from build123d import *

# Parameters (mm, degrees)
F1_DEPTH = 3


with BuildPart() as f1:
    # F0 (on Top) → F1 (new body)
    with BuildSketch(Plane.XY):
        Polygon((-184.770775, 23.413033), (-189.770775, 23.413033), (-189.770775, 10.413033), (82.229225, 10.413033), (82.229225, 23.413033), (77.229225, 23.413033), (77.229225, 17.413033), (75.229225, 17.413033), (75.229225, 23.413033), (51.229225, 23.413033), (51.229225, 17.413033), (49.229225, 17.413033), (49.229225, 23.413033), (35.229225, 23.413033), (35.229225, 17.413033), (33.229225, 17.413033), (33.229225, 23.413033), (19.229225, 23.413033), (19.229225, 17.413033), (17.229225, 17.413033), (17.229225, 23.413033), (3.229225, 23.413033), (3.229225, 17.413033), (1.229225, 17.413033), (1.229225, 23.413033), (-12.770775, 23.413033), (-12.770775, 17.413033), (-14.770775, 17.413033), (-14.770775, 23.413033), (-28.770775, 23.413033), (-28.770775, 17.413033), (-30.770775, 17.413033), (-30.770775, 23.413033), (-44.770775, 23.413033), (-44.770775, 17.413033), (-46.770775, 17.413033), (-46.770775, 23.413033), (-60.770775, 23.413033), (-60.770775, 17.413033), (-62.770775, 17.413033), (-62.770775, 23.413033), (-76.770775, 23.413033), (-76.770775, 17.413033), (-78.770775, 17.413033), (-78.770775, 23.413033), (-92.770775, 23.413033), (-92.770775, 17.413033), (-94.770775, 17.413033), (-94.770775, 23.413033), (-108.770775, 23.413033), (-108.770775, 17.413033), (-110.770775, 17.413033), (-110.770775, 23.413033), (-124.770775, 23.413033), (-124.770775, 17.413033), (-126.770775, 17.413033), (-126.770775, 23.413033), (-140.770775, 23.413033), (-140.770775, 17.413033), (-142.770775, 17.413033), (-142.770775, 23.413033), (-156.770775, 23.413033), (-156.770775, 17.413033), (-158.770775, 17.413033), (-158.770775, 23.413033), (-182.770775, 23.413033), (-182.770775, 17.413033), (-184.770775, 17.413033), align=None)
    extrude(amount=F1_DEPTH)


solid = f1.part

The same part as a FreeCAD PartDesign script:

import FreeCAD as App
import Part
import Sketcher

V = App.Vector

doc = App.newDocument("Part")
body = doc.addObject("PartDesign::Body", "Body")

sketch1 = body.newObject("Sketcher::SketchObject", "Sketch")
sketch1.AttachmentSupport = (doc.getObject("XY_Plane"), [""])
sketch1.MapMode = "FlatFace"
sketch1.addGeometry([
    Part.LineSegment(V(-184.8, 23.4, 0), V(-189.8, 23.4, 0)),
    Part.LineSegment(V(-189.8, 23.4, 0), V(-189.8, 10.4, 0)),
    Part.LineSegment(V(-189.8, 10.4, 0), V(82.2, 10.4, 0)),
    Part.LineSegment(V(82.2, 10.4, 0), V(82.2, 23.4, 0)),
    Part.LineSegment(V(82.2, 23.4, 0), V(77.2, 23.4, 0)),
    Part.LineSegment(V(77.2, 23.4, 0), V(77.2, 17.4, 0)),
    Part.LineSegment(V(77.2, 17.4, 0), V(75.2, 17.4, 0)),
    Part.LineSegment(V(75.2, 17.4, 0), V(75.2, 23.4, 0)),
    Part.LineSegment(V(75.2, 23.4, 0), V(51.2, 23.4, 0)),
    Part.LineSegment(V(51.2, 23.4, 0), V(51.2, 17.4, 0)),
    Part.LineSegment(V(51.2, 17.4, 0), V(49.2, 17.4, 0)),
    Part.LineSegment(V(49.2, 17.4, 0), V(49.2, 23.4, 0)),
    Part.LineSegment(V(49.2, 23.4, 0), V(35.2, 23.4, 0)),
    Part.LineSegment(V(35.2, 23.4, 0), V(35.2, 17.4, 0)),
    Part.LineSegment(V(35.2, 17.4, 0), V(33.2, 17.4, 0)),
    Part.LineSegment(V(33.2, 17.4, 0), V(33.2, 23.4, 0)),
    Part.LineSegment(V(33.2, 23.4, 0), V(19.2, 23.4, 0)),
    Part.LineSegment(V(19.2, 23.4, 0), V(19.2, 17.4, 0)),
    Part.LineSegment(V(19.2, 17.4, 0), V(17.2, 17.4, 0)),
    Part.LineSegment(V(17.2, 17.4, 0), V(17.2, 23.4, 0)),
    Part.LineSegment(V(17.2, 23.4, 0), V(3.2, 23.4, 0)),
    Part.LineSegment(V(3.2, 23.4, 0), V(3.2, 17.4, 0)),
    Part.LineSegment(V(3.2, 17.4, 0), V(1.2, 17.4, 0)),
    Part.LineSegment(V(1.2, 17.4, 0), V(1.2, 23.4, 0)),
    Part.LineSegment(V(1.2, 23.4, 0), V(-12.8, 23.4, 0)),
    Part.LineSegment(V(-12.8, 23.4, 0), V(-12.8, 17.4, 0)),
    Part.LineSegment(V(-12.8, 17.4, 0), V(-14.8, 17.4, 0)),
    Part.LineSegment(V(-14.8, 17.4, 0), V(-14.8, 23.4, 0)),
    Part.LineSegment(V(-14.8, 23.4, 0), V(-28.8, 23.4, 0)),
    Part.LineSegment(V(-28.8, 23.4, 0), V(-28.8, 17.4, 0)),
    Part.LineSegment(V(-28.8, 17.4, 0), V(-30.8, 17.4, 0)),
    Part.LineSegment(V(-30.8, 17.4, 0), V(-30.8, 23.4, 0)),
    Part.LineSegment(V(-30.8, 23.4, 0), V(-44.8, 23.4, 0)),
    Part.LineSegment(V(-44.8, 23.4, 0), V(-44.8, 17.4, 0)),
    Part.LineSegment(V(-44.8, 17.4, 0), V(-46.8, 17.4, 0)),
    Part.LineSegment(V(-46.8, 17.4, 0), V(-46.8, 23.4, 0)),
    Part.LineSegment(V(-46.8, 23.4, 0), V(-60.8, 23.4, 0)),
    Part.LineSegment(V(-60.8, 23.4, 0), V(-60.8, 17.4, 0)),
    Part.LineSegment(V(-60.8, 17.4, 0), V(-62.8, 17.4, 0)),
    Part.LineSegment(V(-62.8, 17.4, 0), V(-62.8, 23.4, 0)),
    Part.LineSegment(V(-62.8, 23.4, 0), V(-76.8, 23.4, 0)),
    Part.LineSegment(V(-76.8, 23.4, 0), V(-76.8, 17.4, 0)),
    Part.LineSegment(V(-76.8, 17.4, 0), V(-78.8, 17.4, 0)),
    Part.LineSegment(V(-78.8, 17.4, 0), V(-78.8, 23.4, 0)),
    Part.LineSegment(V(-78.8, 23.4, 0), V(-92.8, 23.4, 0)),
    Part.LineSegment(V(-92.8, 23.4, 0), V(-92.8, 17.4, 0)),
    Part.LineSegment(V(-92.8, 17.4, 0), V(-94.8, 17.4, 0)),
    Part.LineSegment(V(-94.8, 17.4, 0), V(-94.8, 23.4, 0)),
    Part.LineSegment(V(-94.8, 23.4, 0), V(-108.8, 23.4, 0)),
    Part.LineSegment(V(-108.8, 23.4, 0), V(-108.8, 17.4, 0)),
    Part.LineSegment(V(-108.8, 17.4, 0), V(-110.8, 17.4, 0)),
    Part.LineSegment(V(-110.8, 17.4, 0), V(-110.8, 23.4, 0)),
    Part.LineSegment(V(-110.8, 23.4, 0), V(-124.8, 23.4, 0)),
    Part.LineSegment(V(-124.8, 23.4, 0), V(-124.8, 17.4, 0)),
    Part.LineSegment(V(-124.8, 17.4, 0), V(-126.8, 17.4, 0)),
    Part.LineSegment(V(-126.8, 17.4, 0), V(-126.8, 23.4, 0)),
    Part.LineSegment(V(-126.8, 23.4, 0), V(-140.8, 23.4, 0)),
    Part.LineSegment(V(-140.8, 23.4, 0), V(-140.8, 17.4, 0)),
    Part.LineSegment(V(-140.8, 17.4, 0), V(-142.8, 17.4, 0)),
    Part.LineSegment(V(-142.8, 17.4, 0), V(-142.8, 23.4, 0)),
    Part.LineSegment(V(-142.8, 23.4, 0), V(-156.8, 23.4, 0)),
    Part.LineSegment(V(-156.8, 23.4, 0), V(-156.8, 17.4, 0)),
    Part.LineSegment(V(-156.8, 17.4, 0), V(-158.8, 17.4, 0)),
    Part.LineSegment(V(-158.8, 17.4, 0), V(-158.8, 23.4, 0)),
    Part.LineSegment(V(-158.8, 23.4, 0), V(-182.8, 23.4, 0)),
    Part.LineSegment(V(-182.8, 23.4, 0), V(-182.8, 17.4, 0)),
    Part.LineSegment(V(-182.8, 17.4, 0), V(-184.8, 17.4, 0)),
    Part.LineSegment(V(-184.8, 17.4, 0), V(-184.8, 23.4, 0)),
], False)
sketch1.addConstraint([
    Sketcher.Constraint("Coincident", 0, 2, 1, 1),
    Sketcher.Constraint("Coincident", 1, 2, 2, 1),
    Sketcher.Constraint("Coincident", 2, 2, 3, 1),
    Sketcher.Constraint("Coincident", 3, 2, 4, 1),
    Sketcher.Constraint("Coincident", 4, 2, 5, 1),
    Sketcher.Constraint("Coincident", 5, 2, 6, 1),
    Sketcher.Constraint("Coincident", 6, 2, 7, 1),
    Sketcher.Constraint("Coincident", 7, 2, 8, 1),
    Sketcher.Constraint("Coincident", 8, 2, 9, 1),
    Sketcher.Constraint("Coincident", 9, 2, 10, 1),
    Sketcher.Constraint("Coincident", 10, 2, 11, 1),
    Sketcher.Constraint("Coincident", 11, 2, 12, 1),
    Sketcher.Constraint("Coincident", 12, 2, 13, 1),
    Sketcher.Constraint("Coincident", 13, 2, 14, 1),
    Sketcher.Constraint("Coincident", 14, 2, 15, 1),
    Sketcher.Constraint("Coincident", 15, 2, 16, 1),
    Sketcher.Constraint("Coincident", 16, 2, 17, 1),
    Sketcher.Constraint("Coincident", 17, 2, 18, 1),
    Sketcher.Constraint("Coincident", 18, 2, 19, 1),
    Sketcher.Constraint("Coincident", 19, 2, 20, 1),
    Sketcher.Constraint("Coincident", 20, 2, 21, 1),
    Sketcher.Constraint("Coincident", 21, 2, 22, 1),
    Sketcher.Constraint("Coincident", 22, 2, 23, 1),
    Sketcher.Constraint("Coincident", 23, 2, 24, 1),
    Sketcher.Constraint("Coincident", 24, 2, 25, 1),
    Sketcher.Constraint("Coincident", 25, 2, 26, 1),
    Sketcher.Constraint("Coincident", 26, 2, 27, 1),
    Sketcher.Constraint("Coincident", 27, 2, 28, 1),
    Sketcher.Constraint("Coincident", 28, 2, 29, 1),
    Sketcher.Constraint("Coincident", 29, 2, 30, 1),
    Sketcher.Constraint("Coincident", 30, 2, 31, 1),
    Sketcher.Constraint("Coincident", 31, 2, 32, 1),
    Sketcher.Constraint("Coincident", 32, 2, 33, 1),
    Sketcher.Constraint("Coincident", 33, 2, 34, 1),
    Sketcher.Constraint("Coincident", 34, 2, 35, 1),
    Sketcher.Constraint("Coincident", 35, 2, 36, 1),
    Sketcher.Constraint("Coincident", 36, 2, 37, 1),
    Sketcher.Constraint("Coincident", 37, 2, 38, 1),
    Sketcher.Constraint("Coincident", 38, 2, 39, 1),
    Sketcher.Constraint("Coincident", 39, 2, 40, 1),
    Sketcher.Constraint("Coincident", 40, 2, 41, 1),
    Sketcher.Constraint("Coincident", 41, 2, 42, 1),
    Sketcher.Constraint("Coincident", 42, 2, 43, 1),
    Sketcher.Constraint("Coincident", 43, 2, 44, 1),
    Sketcher.Constraint("Coincident", 44, 2, 45, 1),
    Sketcher.Constraint("Coincident", 45, 2, 46, 1),
    Sketcher.Constraint("Coincident", 46, 2, 47, 1),
    Sketcher.Constraint("Coincident", 47, 2, 48, 1),
    Sketcher.Constraint("Coincident", 48, 2, 49, 1),
    Sketcher.Constraint("Coincident", 49, 2, 50, 1),
    Sketcher.Constraint("Coincident", 50, 2, 51, 1),
    Sketcher.Constraint("Coincident", 51, 2, 52, 1),
    Sketcher.Constraint("Coincident", 52, 2, 53, 1),
    Sketcher.Constraint("Coincident", 53, 2, 54, 1),
    Sketcher.Constraint("Coincident", 54, 2, 55, 1),
    Sketcher.Constraint("Coincident", 55, 2, 56, 1),
    Sketcher.Constraint("Coincident", 56, 2, 57, 1),
    Sketcher.Constraint("Coincident", 57, 2, 58, 1),
    Sketcher.Constraint("Coincident", 58, 2, 59, 1),
    Sketcher.Constraint("Coincident", 59, 2, 60, 1),
    Sketcher.Constraint("Coincident", 60, 2, 61, 1),
    Sketcher.Constraint("Coincident", 61, 2, 62, 1),
    Sketcher.Constraint("Coincident", 62, 2, 63, 1),
    Sketcher.Constraint("Coincident", 63, 2, 64, 1),
    Sketcher.Constraint("Coincident", 64, 2, 65, 1),
    Sketcher.Constraint("Coincident", 65, 2, 66, 1),
    Sketcher.Constraint("Coincident", 66, 2, 67, 1),
    Sketcher.Constraint("Coincident", 67, 2, 0, 1),
    Sketcher.Constraint("Horizontal", 0),
    Sketcher.Constraint("Vertical", 1),
    Sketcher.Constraint("Horizontal", 2),
    Sketcher.Constraint("Vertical", 3),
    Sketcher.Constraint("Horizontal", 4),
    Sketcher.Constraint("Vertical", 5),
    Sketcher.Constraint("Horizontal", 6),
    Sketcher.Constraint("Vertical", 7),
    Sketcher.Constraint("Horizontal", 8),
    Sketcher.Constraint("Vertical", 9),
    Sketcher.Constraint("Horizontal", 10),
    Sketcher.Constraint("Vertical", 11),
    Sketcher.Constraint("Horizontal", 12),
    Sketcher.Constraint("Vertical", 13),
    Sketcher.Constraint("Horizontal", 14),
    Sketcher.Constraint("Vertical", 15),
    Sketcher.Constraint("Horizontal", 16),
    Sketcher.Constraint("Vertical", 17),
    Sketcher.Constraint("Horizontal", 18),
    Sketcher.Constraint("Vertical", 19),
    Sketcher.Constraint("Horizontal", 20),
    Sketcher.Constraint("Vertical", 21),
    Sketcher.Constraint("Horizontal", 22),
    Sketcher.Constraint("Vertical", 23),
    Sketcher.Constraint("Horizontal", 24),
    Sketcher.Constraint("Vertical", 25),
    Sketcher.Constraint("Horizontal", 26),
    Sketcher.Constraint("Vertical", 27),
    Sketcher.Constraint("Horizontal", 28),
    Sketcher.Constraint("Vertical", 29),
    Sketcher.Constraint("Horizontal", 30),
    Sketcher.Constraint("Vertical", 31),
    Sketcher.Constraint("Horizontal", 32),
    Sketcher.Constraint("Vertical", 33),
    Sketcher.Constraint("Horizontal", 34),
    Sketcher.Constraint("Vertical", 35),
    Sketcher.Constraint("Horizontal", 36),
    Sketcher.Constraint("Vertical", 37),
    Sketcher.Constraint("Horizontal", 38),
    Sketcher.Constraint("Vertical", 39),
    Sketcher.Constraint("Horizontal", 40),
    Sketcher.Constraint("Vertical", 41),
    Sketcher.Constraint("Horizontal", 42),
    Sketcher.Constraint("Vertical", 43),
    Sketcher.Constraint("Horizontal", 44),
    Sketcher.Constraint("Vertical", 45),
    Sketcher.Constraint("Horizontal", 46),
    Sketcher.Constraint("Vertical", 47),
    Sketcher.Constraint("Horizontal", 48),
    Sketcher.Constraint("Vertical", 49),
    Sketcher.Constraint("Horizontal", 50),
    Sketcher.Constraint("Vertical", 51),
    Sketcher.Constraint("Horizontal", 52),
    Sketcher.Constraint("Vertical", 53),
    Sketcher.Constraint("Horizontal", 54),
    Sketcher.Constraint("Vertical", 55),
    Sketcher.Constraint("Horizontal", 56),
    Sketcher.Constraint("Vertical", 57),
    Sketcher.Constraint("Horizontal", 58),
    Sketcher.Constraint("Vertical", 59),
    Sketcher.Constraint("Horizontal", 60),
    Sketcher.Constraint("Vertical", 61),
    Sketcher.Constraint("Horizontal", 62),
    Sketcher.Constraint("Vertical", 63),
    Sketcher.Constraint("Horizontal", 64),
    Sketcher.Constraint("Vertical", 65),
    Sketcher.Constraint("Horizontal", 66),
    Sketcher.Constraint("Vertical", 67),
    Sketcher.Constraint("Horizontal", 0, 2, 3, 2),
    Sketcher.Constraint("Horizontal", 4, 2, 7, 2),
    Sketcher.Constraint("Horizontal", 6, 2, 9, 2),
    Sketcher.Constraint("Horizontal", 8, 2, 11, 2),
    Sketcher.Constraint("Horizontal", 10, 2, 13, 2),
    Sketcher.Constraint("Horizontal", 12, 2, 15, 2),
    Sketcher.Constraint("Horizontal", 14, 2, 17, 2),
    Sketcher.Constraint("Horizontal", 16, 2, 19, 2),
    Sketcher.Constraint("Horizontal", 18, 2, 21, 2),
    Sketcher.Constraint("Horizontal", 20, 2, 23, 2),
    Sketcher.Constraint("Horizontal", 22, 2, 25, 2),
    Sketcher.Constraint("Horizontal", 24, 2, 27, 2),
    Sketcher.Constraint("Horizontal", 26, 2, 29, 2),
    Sketcher.Constraint("Horizontal", 28, 2, 31, 2),
    Sketcher.Constraint("Horizontal", 30, 2, 33, 2),
    Sketcher.Constraint("Horizontal", 32, 2, 35, 2),
    Sketcher.Constraint("Horizontal", 34, 2, 37, 2),
    Sketcher.Constraint("Horizontal", 36, 2, 39, 2),
    Sketcher.Constraint("Horizontal", 38, 2, 41, 2),
    Sketcher.Constraint("Horizontal", 40, 2, 43, 2),
    Sketcher.Constraint("Horizontal", 42, 2, 45, 2),
    Sketcher.Constraint("Horizontal", 44, 2, 47, 2),
    Sketcher.Constraint("Horizontal", 46, 2, 49, 2),
    Sketcher.Constraint("Horizontal", 48, 2, 51, 2),
    Sketcher.Constraint("Horizontal", 50, 2, 53, 2),
    Sketcher.Constraint("Horizontal", 52, 2, 55, 2),
    Sketcher.Constraint("Horizontal", 54, 2, 57, 2),
    Sketcher.Constraint("Horizontal", 56, 2, 59, 2),
    Sketcher.Constraint("Horizontal", 58, 2, 61, 2),
    Sketcher.Constraint("Horizontal", 60, 2, 63, 2),
    Sketcher.Constraint("Horizontal", 62, 2, 65, 2),
    Sketcher.Constraint("Equal", 0, 4),
    Sketcher.Constraint("Equal", 6, 10),
    Sketcher.Constraint("Equal", 10, 14),
    Sketcher.Constraint("Equal", 12, 16),
    Sketcher.Constraint("Equal", 14, 18),
    Sketcher.Constraint("Equal", 16, 20),
    Sketcher.Constraint("Equal", 18, 22),
    Sketcher.Constraint("Equal", 20, 24),
    Sketcher.Constraint("Equal", 22, 26),
    Sketcher.Constraint("Equal", 24, 28),
    Sketcher.Constraint("Equal", 26, 30),
    Sketcher.Constraint("Equal", 28, 32),
    Sketcher.Constraint("Equal", 30, 34),
    Sketcher.Constraint("Equal", 32, 36),
    Sketcher.Constraint("Equal", 34, 38),
    Sketcher.Constraint("Equal", 36, 40),
    Sketcher.Constraint("Equal", 38, 42),
    Sketcher.Constraint("Equal", 40, 44),
    Sketcher.Constraint("Equal", 42, 46),
    Sketcher.Constraint("Equal", 44, 48),
    Sketcher.Constraint("Equal", 46, 50),
    Sketcher.Constraint("Equal", 48, 52),
    Sketcher.Constraint("Equal", 50, 54),
    Sketcher.Constraint("Equal", 52, 56),
    Sketcher.Constraint("Equal", 54, 58),
    Sketcher.Constraint("Equal", 56, 60),
    Sketcher.Constraint("Equal", 58, 62),
    Sketcher.Constraint("Equal", 8, 64),
    Sketcher.Constraint("Equal", 62, 66),
    Sketcher.Constraint("DistanceX", 0, 2, 0, 1, 5.0),
    Sketcher.Constraint("DistanceX", 2, 1, 2, 2, 272.0),
    Sketcher.Constraint("DistanceX", 6, 2, 6, 1, 2.0),
    Sketcher.Constraint("DistanceX", 8, 2, 8, 1, 24.0),
    Sketcher.Constraint("DistanceY", 1, 2, 1, 1, 13.0),
    Sketcher.Constraint("DistanceY", 5, 2, 5, 1, 6.0),
    Sketcher.Constraint("DistanceX", 0, 2, -1, 1, 189.770775),
    Sketcher.Constraint("DistanceY", -1, 1, 0, 2, 23.413033),
])
pad1 = body.newObject("PartDesign::Pad", "Pad")
pad1.Profile = sketch1
pad1.Length = 3

doc.recompute()
